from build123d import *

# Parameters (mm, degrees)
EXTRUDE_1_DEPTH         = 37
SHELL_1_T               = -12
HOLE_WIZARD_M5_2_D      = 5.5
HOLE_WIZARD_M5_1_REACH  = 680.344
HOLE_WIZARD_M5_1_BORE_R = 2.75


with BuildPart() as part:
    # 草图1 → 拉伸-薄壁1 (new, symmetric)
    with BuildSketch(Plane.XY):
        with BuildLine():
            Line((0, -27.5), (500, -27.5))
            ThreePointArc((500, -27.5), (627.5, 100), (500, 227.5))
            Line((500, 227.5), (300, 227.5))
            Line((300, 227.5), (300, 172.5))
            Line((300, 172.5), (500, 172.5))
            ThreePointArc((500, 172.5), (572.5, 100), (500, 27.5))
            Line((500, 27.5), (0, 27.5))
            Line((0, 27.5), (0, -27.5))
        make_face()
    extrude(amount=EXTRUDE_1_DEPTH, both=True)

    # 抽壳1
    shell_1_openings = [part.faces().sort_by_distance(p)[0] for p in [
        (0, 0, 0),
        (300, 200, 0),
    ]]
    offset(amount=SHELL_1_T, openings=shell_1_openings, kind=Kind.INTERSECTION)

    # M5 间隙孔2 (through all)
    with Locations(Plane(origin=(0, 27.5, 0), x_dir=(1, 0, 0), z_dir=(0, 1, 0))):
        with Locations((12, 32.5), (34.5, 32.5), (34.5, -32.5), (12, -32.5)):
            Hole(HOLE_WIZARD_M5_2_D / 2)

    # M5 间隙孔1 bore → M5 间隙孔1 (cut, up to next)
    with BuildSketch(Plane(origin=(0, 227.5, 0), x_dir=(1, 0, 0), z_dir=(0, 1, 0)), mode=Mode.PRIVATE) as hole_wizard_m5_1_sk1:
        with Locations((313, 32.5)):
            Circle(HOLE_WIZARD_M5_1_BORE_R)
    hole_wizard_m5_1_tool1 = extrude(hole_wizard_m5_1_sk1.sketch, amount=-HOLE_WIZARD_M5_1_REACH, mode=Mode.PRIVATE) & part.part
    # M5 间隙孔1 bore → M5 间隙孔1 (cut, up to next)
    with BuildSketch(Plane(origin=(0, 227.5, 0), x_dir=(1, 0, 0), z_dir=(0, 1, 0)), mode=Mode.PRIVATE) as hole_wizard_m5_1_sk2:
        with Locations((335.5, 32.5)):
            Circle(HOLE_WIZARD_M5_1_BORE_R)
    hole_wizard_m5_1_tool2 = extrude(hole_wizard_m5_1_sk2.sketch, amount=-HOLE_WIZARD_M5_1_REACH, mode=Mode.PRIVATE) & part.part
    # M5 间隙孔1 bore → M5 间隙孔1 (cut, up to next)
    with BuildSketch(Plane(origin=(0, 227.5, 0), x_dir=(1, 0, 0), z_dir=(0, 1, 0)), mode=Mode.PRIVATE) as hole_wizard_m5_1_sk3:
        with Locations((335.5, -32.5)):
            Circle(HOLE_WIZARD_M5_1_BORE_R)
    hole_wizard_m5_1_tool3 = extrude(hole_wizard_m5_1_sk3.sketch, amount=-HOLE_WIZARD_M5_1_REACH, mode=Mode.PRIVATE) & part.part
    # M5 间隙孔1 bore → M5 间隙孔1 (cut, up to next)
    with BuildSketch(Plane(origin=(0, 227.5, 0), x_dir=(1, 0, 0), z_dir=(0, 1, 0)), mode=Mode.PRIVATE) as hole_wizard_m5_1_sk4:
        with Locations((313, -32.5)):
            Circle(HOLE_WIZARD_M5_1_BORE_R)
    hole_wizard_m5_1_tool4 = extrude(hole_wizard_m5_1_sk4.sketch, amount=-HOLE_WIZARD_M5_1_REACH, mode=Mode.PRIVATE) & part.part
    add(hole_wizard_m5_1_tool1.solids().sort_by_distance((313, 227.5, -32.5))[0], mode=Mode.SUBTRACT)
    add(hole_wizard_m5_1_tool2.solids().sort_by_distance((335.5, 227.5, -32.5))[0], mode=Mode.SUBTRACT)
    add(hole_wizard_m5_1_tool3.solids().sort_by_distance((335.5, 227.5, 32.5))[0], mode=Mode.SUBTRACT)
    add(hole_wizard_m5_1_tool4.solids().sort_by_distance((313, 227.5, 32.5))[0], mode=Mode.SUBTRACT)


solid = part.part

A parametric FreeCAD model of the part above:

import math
import FreeCAD as App
import Part
import Sketcher
from FreeCAD import Vector


def faces_at(feature, points):
    """Names of the faces that lie closest to the given points."""
    faces = feature.Shape.Faces
    near = lambda p: min(range(len(faces)), key=lambda i: faces[i].distToShape(Part.Vertex(*p))[0])
    return sorted({f"Face{near(p) + 1}" for p in points})

doc = App.newDocument("Part")
body = doc.addObject("PartDesign::Body", "Body")

# Sketch on XY plane
sketch1 = body.newObject("Sketcher::SketchObject", "Sketch")
sketch1.AttachmentSupport = (doc.getObject("XY_Plane"), [""])
sketch1.MapMode = "FlatFace"
sketch1.addGeometry([
    Part.LineSegment(Vector(0, -28, 0), Vector(500, -28, 0)),  # 0
    Part.ArcOfCircle(Part.Circle(Vector(500, 100, 0), Vector(0, 0, 1), 128), math.radians(-90), math.radians(90)),  # 1
    Part.LineSegment(Vector(500, 228, 0), Vector(300, 228, 0)),  # 2
    Part.LineSegment(Vector(300, 228, 0), Vector(300, 172, 0)),  # 3
    Part.LineSegment(Vector(300, 172, 0), Vector(500, 172, 0)),  # 4
    Part.ArcOfCircle(Part.Circle(Vector(500, 100, 0), Vector(0, 0, 1), 72), math.radians(-90), math.radians(90)),  # 5
    Part.LineSegment(Vector(500, 28, 0), Vector(0, 28, 0)),  # 6
    Part.LineSegment(Vector(0, 28, 0), Vector(0, -28, 0)),  # 7
], False)
sketch1.addConstraint([
    Sketcher.Constraint("Tangent", 0, 2, 1, 1),
    Sketcher.Constraint("Tangent", 1, 2, 2, 1),
    Sketcher.Constraint("Coincident", 2, 2, 3, 1),
    Sketcher.Constraint("Coincident", 3, 2, 4, 1),
    Sketcher.Constraint("Tangent", 4, 2, 5, 2),
    Sketcher.Constraint("Tangent", 5, 1, 6, 1),
    Sketcher.Constraint("Coincident", 6, 2, 7, 1),
    Sketcher.Constraint("Coincident", 7, 2, 0, 1),
    Sketcher.Constraint("Horizontal", 0),
    Sketcher.Constraint("Horizontal", 2),
    Sketcher.Constraint("Vertical", 3),
    Sketcher.Constraint("Horizontal", 4),
    Sketcher.Constraint("Horizontal", 6),
    Sketcher.Constraint("Vertical", 7),
    Sketcher.Constraint("Coincident", 5, 3, 1, 3),
    Sketcher.Constraint("Symmetric", 6, 2, 7, 2, -1, 1),
    Sketcher.Constraint("Radius", 1, 127.5),
    Sketcher.Constraint("Radius", 5, 72.5),
    Sketcher.Constraint("DistanceX", 0, 1, 0, 2, 500.0),
    Sketcher.Constraint("DistanceX", 2, 2, 2, 1, 200.0),
])
pad1 = body.newObject("PartDesign::Pad", "Pad")
pad1.Profile = sketch1
pad1.Length = 74
pad1.Midplane = True
doc.recompute()

thickness = body.newObject("PartDesign::Thickness", "Thickness")
thickness.Base = (pad1, faces_at(pad1, [(0, 0, 0), (300, 200, 0)]))
thickness.Value = 12
thickness.Reversed = True
thickness.Join = "Intersection"

# Sketch on XZ plane
sketch2 = body.newObject("Sketcher::SketchObject", "Sketch001")
sketch2.AttachmentSupport = (doc.getObject("XZ_Plane"), [""])
sketch2.MapMode = "FlatFace"
sketch2.AttachmentOffset = App.Placement(Vector(0, 0, -27.5), App.Rotation())
sketch2.addGeometry([
    Part.Circle(Vector(12, -32.5, 0), Vector(0, 0, 1), 2.8),
    Part.Circle(Vector(34.5, -32.5, 0), Vector(0, 0, 1), 2.8),
    Part.Circle(Vector(34.5, 32.5, 0), Vector(0, 0, 1), 2.8),
    Part.Circle(Vector(12, 32.5, 0), Vector(0, 0, 1), 2.8),
], False)
sketch2.addConstraint([
    Sketcher.Constraint("Equal", 0, 1),
    Sketcher.Constraint("Equal", 1, 2),
    Sketcher.Constraint("Equal", 2, 3),
    Sketcher.Constraint("Symmetric", 1, 3, 2, 3, -1),
    Sketcher.Constraint("Symmetric", 0, 3, 3, 3, -1),
    Sketcher.Constraint("Horizontal", 0, 3, 1, 3),
    Sketcher.Constraint("Diameter", 0, 5.5),
    Sketcher.Constraint("DistanceX", -1, 1, 0, 3, 12.0),
    Sketcher.Constraint("DistanceY", 1, 3, 2, 3, 65.0),
    Sketcher.Constraint("DistanceX", -1, 1, 1, 3, 34.5),
])
doc.recompute()
hole = body.newObject("PartDesign::Hole", "Hole")
hole.Profile = sketch2
hole.ThreadType = "None"
hole.Diameter = 5.5
hole.DepthType = "ThroughAll"
hole.Reversed = True

# Sketch on XZ plane
sketch3 = body.newObject("Sketcher::SketchObject", "Sketch002")
sketch3.AttachmentSupport = (doc.getObject("XZ_Plane"), [""])
sketch3.MapMode = "FlatFace"
sketch3.AttachmentOffset = App.Placement(Vector(0, 0, -227.5), App.Rotation())
sketch3.addGeometry(Part.Circle(Vector(313, -32.5, 0), Vector(0, 0, 1), 2.8), False)
sketch3.addConstraint([
    Sketcher.Constraint("Diameter", 0, 5.5),
    Sketcher.Constraint("DistanceX", -1, 1, 0, 3, 313.0),
    Sketcher.Constraint("DistanceY", 0, 3, -1, 1, 32.5),
])
pocket1 = body.newObject("PartDesign::Pocket", "Pocket")
pocket1.Profile = sketch3
pocket1.Type = "UpToFirst"
pocket1.Reversed = True

# Sketch on XZ plane
sketch4 = body.newObject("Sketcher::SketchObject", "Sketch003")
sketch4.AttachmentSupport = (doc.getObject("XZ_Plane"), [""])
sketch4.MapMode = "FlatFace"
sketch4.AttachmentOffset = App.Placement(Vector(0, 0, -227.5), App.Rotation())
sketch4.addGeometry(Part.Circle(Vector(335.5, -32.5, 0), Vector(0, 0, 1), 2.8), False)
sketch4.addConstraint([
    Sketcher.Constraint("Diameter", 0, 5.5),
    Sketcher.Constraint("DistanceX", -1, 1, 0, 3, 335.5),
    Sketcher.Constraint("DistanceY", 0, 3, -1, 1, 32.5),
])
pocket2 = body.newObject("PartDesign::Pocket", "Pocket001")
pocket2.Profile = sketch4
pocket2.Type = "UpToFirst"
pocket2.Reversed = True

# Sketch on XZ plane
sketch5 = body.newObject("Sketcher::SketchObject", "Sketch004")
sketch5.AttachmentSupport = (doc.getObject("XZ_Plane"), [""])
sketch5.MapMode = "FlatFace"
sketch5.AttachmentOffset = App.Placement(Vector(0, 0, -227.5), App.Rotation())
sketch5.addGeometry(Part.Circle(Vector(335.5, 32.5, 0), Vector(0, 0, 1), 2.8), False)
sketch5.addConstraint([
    Sketcher.Constraint("Diameter", 0, 5.5),
    Sketcher.Constraint("DistanceX", -1, 1, 0, 3, 335.5),
    Sketcher.Constraint("DistanceY", -1, 1, 0, 3, 32.5),
])
pocket3 = body.newObject("PartDesign::Pocket", "Pocket002")
pocket3.Profile = sketch5
pocket3.Type = "UpToFirst"
pocket3.Reversed = True

# Sketch on XZ plane
sketch6 = body.newObject("Sketcher::SketchObject", "Sketch005")
sketch6.AttachmentSupport = (doc.getObject("XZ_Plane"), [""])
sketch6.MapMode = "FlatFace"
sketch6.AttachmentOffset = App.Placement(Vector(0, 0, -227.5), App.Rotation())
sketch6.addGeometry(Part.Circle(Vector(313, 32.5, 0), Vector(0, 0, 1), 2.8), False)
sketch6.addConstraint([
    Sketcher.Constraint("Diameter", 0, 5.5),
    Sketcher.Constraint("DistanceX", -1, 1, 0, 3, 313.0),
    Sketcher.Constraint("DistanceY", -1, 1, 0, 3, 32.5),
])
pocket4 = body.newObject("PartDesign::Pocket", "Pocket003")
pocket4.Profile = sketch6
pocket4.Type = "UpToFirst"
pocket4.Reversed = True

doc.recompute()
